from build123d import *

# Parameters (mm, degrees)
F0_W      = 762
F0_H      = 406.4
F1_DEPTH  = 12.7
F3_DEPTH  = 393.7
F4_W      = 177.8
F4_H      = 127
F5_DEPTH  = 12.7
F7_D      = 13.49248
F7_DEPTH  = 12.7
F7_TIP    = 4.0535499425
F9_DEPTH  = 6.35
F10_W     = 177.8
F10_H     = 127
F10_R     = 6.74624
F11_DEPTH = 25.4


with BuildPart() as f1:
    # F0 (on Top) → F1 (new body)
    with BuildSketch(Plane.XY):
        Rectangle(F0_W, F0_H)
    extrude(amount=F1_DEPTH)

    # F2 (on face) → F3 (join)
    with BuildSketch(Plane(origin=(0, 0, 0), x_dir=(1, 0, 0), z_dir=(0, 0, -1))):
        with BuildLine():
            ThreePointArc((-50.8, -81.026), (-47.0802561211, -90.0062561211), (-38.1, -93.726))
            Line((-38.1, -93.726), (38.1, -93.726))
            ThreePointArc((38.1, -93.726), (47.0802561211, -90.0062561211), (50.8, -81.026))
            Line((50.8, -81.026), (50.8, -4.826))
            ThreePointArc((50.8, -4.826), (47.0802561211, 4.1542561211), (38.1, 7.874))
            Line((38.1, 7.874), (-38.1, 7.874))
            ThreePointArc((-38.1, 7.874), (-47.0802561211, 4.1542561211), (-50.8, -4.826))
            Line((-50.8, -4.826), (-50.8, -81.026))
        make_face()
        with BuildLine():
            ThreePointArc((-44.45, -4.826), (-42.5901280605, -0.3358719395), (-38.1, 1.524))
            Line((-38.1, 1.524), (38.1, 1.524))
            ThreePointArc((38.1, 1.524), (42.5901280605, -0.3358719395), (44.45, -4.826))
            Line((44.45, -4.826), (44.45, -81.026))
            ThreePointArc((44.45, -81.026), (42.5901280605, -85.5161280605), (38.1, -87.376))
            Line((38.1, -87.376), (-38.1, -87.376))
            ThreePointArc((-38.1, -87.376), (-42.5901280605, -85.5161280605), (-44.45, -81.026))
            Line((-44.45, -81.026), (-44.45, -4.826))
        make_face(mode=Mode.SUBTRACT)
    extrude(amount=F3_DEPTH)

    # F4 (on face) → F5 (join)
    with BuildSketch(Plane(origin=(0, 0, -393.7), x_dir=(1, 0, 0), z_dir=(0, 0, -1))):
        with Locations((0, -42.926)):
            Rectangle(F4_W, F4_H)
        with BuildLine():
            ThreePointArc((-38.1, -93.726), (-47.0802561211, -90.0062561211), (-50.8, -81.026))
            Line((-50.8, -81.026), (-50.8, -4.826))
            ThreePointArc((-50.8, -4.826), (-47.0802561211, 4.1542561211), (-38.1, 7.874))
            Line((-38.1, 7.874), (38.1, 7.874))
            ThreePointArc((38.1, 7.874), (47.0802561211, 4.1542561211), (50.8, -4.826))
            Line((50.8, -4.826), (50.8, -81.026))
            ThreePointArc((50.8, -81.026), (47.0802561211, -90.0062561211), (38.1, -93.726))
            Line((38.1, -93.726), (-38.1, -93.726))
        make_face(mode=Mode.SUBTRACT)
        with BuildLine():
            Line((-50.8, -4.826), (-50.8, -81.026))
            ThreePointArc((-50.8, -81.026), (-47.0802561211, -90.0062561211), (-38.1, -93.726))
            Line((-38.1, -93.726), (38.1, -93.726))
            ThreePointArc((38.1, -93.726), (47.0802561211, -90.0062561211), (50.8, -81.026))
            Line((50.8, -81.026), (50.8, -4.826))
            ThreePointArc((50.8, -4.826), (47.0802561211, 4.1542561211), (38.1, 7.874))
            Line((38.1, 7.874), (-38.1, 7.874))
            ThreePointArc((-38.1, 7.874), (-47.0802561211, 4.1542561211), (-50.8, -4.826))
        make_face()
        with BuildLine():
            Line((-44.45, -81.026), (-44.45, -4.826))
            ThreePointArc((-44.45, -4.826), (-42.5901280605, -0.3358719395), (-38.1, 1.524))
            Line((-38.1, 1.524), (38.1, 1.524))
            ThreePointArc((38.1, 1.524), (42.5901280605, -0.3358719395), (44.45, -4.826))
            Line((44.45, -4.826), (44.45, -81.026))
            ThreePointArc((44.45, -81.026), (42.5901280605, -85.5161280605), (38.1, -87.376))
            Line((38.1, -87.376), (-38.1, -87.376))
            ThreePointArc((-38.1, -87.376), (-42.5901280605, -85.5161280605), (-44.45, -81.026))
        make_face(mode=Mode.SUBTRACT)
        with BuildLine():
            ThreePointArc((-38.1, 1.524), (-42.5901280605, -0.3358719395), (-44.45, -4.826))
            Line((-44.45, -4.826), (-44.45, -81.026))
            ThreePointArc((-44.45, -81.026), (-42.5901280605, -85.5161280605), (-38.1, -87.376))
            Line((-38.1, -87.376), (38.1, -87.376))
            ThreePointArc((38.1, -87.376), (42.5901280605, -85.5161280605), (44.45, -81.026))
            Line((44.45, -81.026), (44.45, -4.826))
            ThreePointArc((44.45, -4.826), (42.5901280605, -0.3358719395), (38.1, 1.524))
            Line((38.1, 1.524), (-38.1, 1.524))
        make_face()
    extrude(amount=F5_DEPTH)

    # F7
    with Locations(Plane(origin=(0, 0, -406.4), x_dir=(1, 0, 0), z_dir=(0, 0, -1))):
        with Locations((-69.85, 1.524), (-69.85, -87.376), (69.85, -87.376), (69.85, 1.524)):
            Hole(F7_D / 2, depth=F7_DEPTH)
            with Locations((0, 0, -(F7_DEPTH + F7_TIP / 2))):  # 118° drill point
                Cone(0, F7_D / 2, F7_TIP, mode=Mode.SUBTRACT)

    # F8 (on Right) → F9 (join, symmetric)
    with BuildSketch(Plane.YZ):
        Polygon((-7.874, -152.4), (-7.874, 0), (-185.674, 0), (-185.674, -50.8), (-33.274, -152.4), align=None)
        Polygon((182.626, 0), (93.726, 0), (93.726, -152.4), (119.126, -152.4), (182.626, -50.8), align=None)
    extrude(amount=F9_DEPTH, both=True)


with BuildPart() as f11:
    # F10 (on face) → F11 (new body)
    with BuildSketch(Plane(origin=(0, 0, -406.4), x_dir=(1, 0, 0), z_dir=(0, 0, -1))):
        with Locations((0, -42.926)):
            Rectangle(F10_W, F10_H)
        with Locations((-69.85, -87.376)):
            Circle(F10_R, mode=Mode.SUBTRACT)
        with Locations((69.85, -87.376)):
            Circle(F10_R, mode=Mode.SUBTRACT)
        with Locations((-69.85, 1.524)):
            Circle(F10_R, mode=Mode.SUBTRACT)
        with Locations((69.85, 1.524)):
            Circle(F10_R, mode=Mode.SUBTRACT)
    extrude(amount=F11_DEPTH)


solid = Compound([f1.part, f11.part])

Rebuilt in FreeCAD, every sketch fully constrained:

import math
import FreeCAD as App
import Part
import Sketcher

V = App.Vector
Q = App.Units.Quantity

doc = App.newDocument("Part")
body = doc.addObject("PartDesign::Body", "Body")

# Sketch on XY plane
sketch1 = body.newObject("Sketcher::SketchObject", "Sketch")
sketch1.AttachmentSupport = (doc.getObject("XY_Plane"), [""])
sketch1.MapMode = "FlatFace"
sketch1.addGeometry(Part.LineSegment(V(-381, 203, 0), V(-381, -203, 0)), False)
sketch1.addGeometry(Part.LineSegment(V(-381, -203, 0), V(381, -203, 0)), False)
sketch1.addGeometry(Part.LineSegment(V(381, -203, 0), V(381, 203, 0)), False)
sketch1.addGeometry(Part.LineSegment(V(381, 203, 0), V(-381, 203, 0)), False)
sketch1.addConstraint(Sketcher.Constraint("Coincident", 0, 2, 1, 1))
sketch1.addConstraint(Sketcher.Constraint("Coincident", 1, 2, 2, 1))
sketch1.addConstraint(Sketcher.Constraint("Coincident", 2, 2, 3, 1))
sketch1.addConstraint(Sketcher.Constraint("Coincident", 3, 2, 0, 1))
sketch1.addConstraint(Sketcher.Constraint("Vertical", 0))
sketch1.addConstraint(Sketcher.Constraint("Horizontal", 1))
sketch1.addConstraint(Sketcher.Constraint("Vertical", 2))
sketch1.addConstraint(Sketcher.Constraint("Horizontal", 3))
sketch1.addConstraint(Sketcher.Constraint("Symmetric", 0, 2, 2, 2, -1, 1))
sketch1.addConstraint(Sketcher.Constraint("DistanceX", 1, 1, 1, 2, Q("30 in")))
sketch1.addConstraint(Sketcher.Constraint("DistanceY", 0, 2, 0, 1, Q("16 in")))
pad1 = body.newObject("PartDesign::Pad", "Pad")
pad1.Profile = sketch1
pad1.Length = Q("0.5 in")

# Sketch on XY plane
sketch2 = body.newObject("Sketcher::SketchObject", "Sketch001")
sketch2.AttachmentSupport = (doc.getObject("XY_Plane"), [""])
sketch2.MapMode = "FlatFace"
sketch2.addGeometry(Part.ArcOfCircle(Part.Circle(V(-38, 81, 0), V(0, 0, 1), 13), math.radians(90), math.radians(180)), False)
sketch2.addGeometry(Part.LineSegment(V(-38, 94, 0), V(38, 94, 0)), False)
sketch2.addGeometry(Part.ArcOfCircle(Part.Circle(V(38, 81, 0), V(0, 0, 1), 13), math.radians(0), math.radians(90)), False)
sketch2.addGeometry(Part.LineSegment(V(51, 81, 0), V(51, 5, 0)), False)
sketch2.addGeometry(Part.ArcOfCircle(Part.Circle(V(38, 5, 0), V(0, 0, 1), 13), math.radians(-90), math.radians(0)), False)
sketch2.addGeometry(Part.LineSegment(V(38, -8, 0), V(-38, -8, 0)), False)
sketch2.addGeometry(Part.ArcOfCircle(Part.Circle(V(-38, 5, 0), V(0, 0, 1), 13), math.radians(180), math.radians(270)), False)
sketch2.addGeometry(Part.LineSegment(V(-51, 5, 0), V(-51, 81, 0)), False)
sketch2.addGeometry(Part.LineSegment(V(-44, 81, 0), V(-44, 5, 0)), False)
sketch2.addGeometry(Part.ArcOfCircle(Part.Circle(V(-38, 5, 0), V(0, 0, 1), 6), math.radians(180), math.radians(270)), False)
sketch2.addGeometry(Part.LineSegment(V(-38, -2, 0), V(38, -2, 0)), False)
sketch2.addGeometry(Part.ArcOfCircle(Part.Circle(V(38, 5, 0), V(0, 0, 1), 6), math.radians(-90), math.radians(0)), False)
sketch2.addGeometry(Part.LineSegment(V(44, 5, 0), V(44, 81, 0)), False)
sketch2.addGeometry(Part.ArcOfCircle(Part.Circle(V(38, 81, 0), V(0, 0, 1), 6), math.radians(0), math.radians(90)), False)
sketch2.addGeometry(Part.LineSegment(V(38, 87, 0), V(-38, 87, 0)), False)
sketch2.addGeometry(Part.ArcOfCircle(Part.Circle(V(-38, 81, 0), V(0, 0, 1), 6), math.radians(90), math.radians(180)), False)
sketch2.addConstraint(Sketcher.Constraint("Tangent", 0, 1, 1, 1))
sketch2.addConstraint(Sketcher.Constraint("Tangent", 1, 2, 2, 2))
sketch2.addConstraint(Sketcher.Constraint("Tangent", 2, 1, 3, 1))
sketch2.addConstraint(Sketcher.Constraint("Tangent", 3, 2, 4, 2))
sketch2.addConstraint(Sketcher.Constraint("Tangent", 4, 1, 5, 1))
sketch2.addConstraint(Sketcher.Constraint("Tangent", 5, 2, 6, 2))
sketch2.addConstraint(Sketcher.Constraint("Tangent", 6, 1, 7, 1))
sketch2.addConstraint(Sketcher.Constraint("Tangent", 7, 2, 0, 2))
sketch2.addConstraint(Sketcher.Constraint("Tangent", 8, 2, 9, 1))
sketch2.addConstraint(Sketcher.Constraint("Tangent", 9, 2, 10, 1))
sketch2.addConstraint(Sketcher.Constraint("Tangent", 10, 2, 11, 1))
sketch2.addConstraint(Sketcher.Constraint("Tangent", 11, 2, 12, 1))
sketch2.addConstraint(Sketcher.Constraint("Tangent", 12, 2, 13, 1))
sketch2.addConstraint(Sketcher.Constraint("Tangent", 13, 2, 14, 1))
sketch2.addConstraint(Sketcher.Constraint("Tangent", 14, 2, 15, 1))
sketch2.addConstraint(Sketcher.Constraint("Tangent", 15, 2, 8, 1))
sketch2.addConstraint(Sketcher.Constraint("Horizontal", 1))
sketch2.addConstraint(Sketcher.Constraint("Vertical", 3))
sketch2.addConstraint(Sketcher.Constraint("Horizontal", 5))
sketch2.addConstraint(Sketcher.Constraint("Vertical", 7))
sketch2.addConstraint(Sketcher.Constraint("Vertical", 8))
sketch2.addConstraint(Sketcher.Constraint("Horizontal", 10))
sketch2.addConstraint(Sketcher.Constraint("Vertical", 12))
sketch2.addConstraint(Sketcher.Constraint("Horizontal", 14))
sketch2.addConstraint(Sketcher.Constraint("Coincident", 9, 3, 6, 3))
sketch2.addConstraint(Sketcher.Constraint("Coincident", 11, 3, 4, 3))
sketch2.addConstraint(Sketcher.Constraint("Coincident", 13, 3, 2, 3))
sketch2.addConstraint(Sketcher.Constraint("Equal", 0, 2))
sketch2.addConstraint(Sketcher.Constraint("Equal", 2, 4))
sketch2.addConstraint(Sketcher.Constraint("Equal", 4, 6))
sketch2.addConstraint(Sketcher.Constraint("Equal", 13, 15))
sketch2.addConstraint(Sketcher.Constraint("Equal", 14, 3))
sketch2.addConstraint(Sketcher.Constraint("Radius", 0, Q("0.5 in")))
sketch2.addConstraint(Sketcher.Constraint("DistanceX", 1, 1, 1, 2, Q("3 in")))
sketch2.addConstraint(Sketcher.Constraint("Radius", 9, Q("0.25 in")))
sketch2.addConstraint(Sketcher.Constraint("DistanceX", -1, 1, 2, 1, Q("2 in")))
sketch2.addConstraint(Sketcher.Constraint("DistanceY", -1, 1, 0, 3, Q("3.19 in")))
pad2 = body.newObject("PartDesign::Pad", "Pad001")
pad2.Profile = sketch2
pad2.Length = Q("15.5 in")
pad2.Reversed = True

# Sketch on XY plane
sketch3 = body.newObject("Sketcher::SketchObject", "Sketch002")
sketch3.AttachmentSupport = (doc.getObject("XY_Plane"), [""])
sketch3.MapMode = "FlatFace"
sketch3.AttachmentOffset = App.Placement(V(0, 0, -15.5 * 25.4), App.Rotation())
sketch3.addGeometry(Part.LineSegment(V(-89, -21, 0), V(-89, 106, 0)), False)
sketch3.addGeometry(Part.LineSegment(V(-89, 106, 0), V(89, 106, 0)), False)
sketch3.addGeometry(Part.LineSegment(V(89, 106, 0), V(89, -21, 0)), False)
sketch3.addGeometry(Part.LineSegment(V(89, -21, 0), V(-89, -21, 0)), False)
sketch3.addConstraint(Sketcher.Constraint("Coincident", 0, 2, 1, 1))
sketch3.addConstraint(Sketcher.Constraint("Coincident", 1, 2, 2, 1))
sketch3.addConstraint(Sketcher.Constraint("Coincident", 2, 2, 3, 1))
sketch3.addConstraint(Sketcher.Constraint("Coincident", 3, 2, 0, 1))
sketch3.addConstraint(Sketcher.Constraint("Vertical", 0))
sketch3.addConstraint(Sketcher.Constraint("Horizontal", 1))
sketch3.addConstraint(Sketcher.Constraint("Vertical", 2))
sketch3.addConstraint(Sketcher.Constraint("Horizontal", 3))
sketch3.addConstraint(Sketcher.Constraint("DistanceX", 1, 1, 1, 2, Q("7 in")))
sketch3.addConstraint(Sketcher.Constraint("DistanceY", 0, 1, 0, 2, Q("5 in")))
sketch3.addConstraint(Sketcher.Constraint("DistanceX", 0, 2, -1, 1, Q("3.5 in")))
sketch3.addConstraint(Sketcher.Constraint("DistanceY", -1, 1, 0, 2, Q("4.19 in")))
pad3 = body.newObject("PartDesign::Pad", "Pad002")
pad3.Profile = sketch3
pad3.Length = Q("0.5 in")
pad3.Reversed = True

# Sketch on XY plane
sketch4 = body.newObject("Sketcher::SketchObject", "Sketch003")
sketch4.AttachmentSupport = (doc.getObject("XY_Plane"), [""])
sketch4.MapMode = "FlatFace"
sketch4.AttachmentOffset = App.Placement(V(0, 0, -16 * 25.4), App.Rotation())
sketch4.addGeometry(Part.Circle(V(-70, -2, 0), V(0, 0, 1), 7), False)
sketch4.addGeometry(Part.Circle(V(-70, 87, 0), V(0, 0, 1), 7), False)
sketch4.addGeometry(Part.Circle(V(70, 87, 0), V(0, 0, 1), 7), False)
sketch4.addGeometry(Part.Circle(V(70, -2, 0), V(0, 0, 1), 7), False)
sketch4.addConstraint(Sketcher.Constraint("Equal", 0, 1))
sketch4.addConstraint(Sketcher.Constraint("Equal", 1, 2))
sketch4.addConstraint(Sketcher.Constraint("Equal", 2, 3))
sketch4.addConstraint(Sketcher.Constraint("Symmetric", 1, 3, 2, 3, -2))
sketch4.addConstraint(Sketcher.Constraint("Symmetric", 0, 3, 3, 3, -2))
sketch4.addConstraint(Sketcher.Constraint("Vertical", 0, 3, 1, 3))
sketch4.addConstraint(Sketcher.Constraint("Diameter", 0, Q("0.5312 in")))
sketch4.addConstraint(Sketcher.Constraint("DistanceY", 0, 3, 1, 3, Q("3.5 in")))
sketch4.addConstraint(Sketcher.Constraint("DistanceX", 1, 3, 2, 3, Q("5.5 in")))
sketch4.addConstraint(Sketcher.Constraint("DistanceY", 0, 3, -1, 1, Q("0.06 in")))
doc.recompute()
hole = body.newObject("PartDesign::Hole", "Hole")
hole.Profile = sketch4
hole.ThreadType = "None"
hole.Diameter = Q("0.5312 in")
hole.DepthType = "Dimension"
hole.Depth = Q("0.5 in")
hole.DrillPoint = "Angled"
hole.DrillPointAngle = 118
hole.Reversed = True

# Sketch on YZ plane
sketch5 = body.newObject("Sketcher::SketchObject", "Sketch004")
sketch5.AttachmentSupport = (doc.getObject("YZ_Plane"), [""])
sketch5.MapMode = "FlatFace"
sketch5.addGeometry(Part.LineSegment(V(-8, -152, 0), V(-8, 0, 0)), False)
sketch5.addGeometry(Part.LineSegment(V(-8, 0, 0), V(-186, 0, 0)), False)
sketch5.addGeometry(Part.LineSegment(V(-186, 0, 0), V(-186, -51, 0)), False)
sketch5.addGeometry(Part.LineSegment(V(-186, -51, 0), V(-33, -152, 0)), False)
sketch5.addGeometry(Part.LineSegment(V(-33, -152, 0), V(-8, -152, 0)), False)
sketch5.addGeometry(Part.LineSegment(V(183, 0, 0), V(94, 0, 0)), False)
sketch5.addGeometry(Part.LineSegment(V(94, 0, 0), V(94, -152, 0)), False)
sketch5.addGeometry(Part.LineSegment(V(94, -152, 0), V(119, -152, 0)), False)
sketch5.addGeometry(Part.LineSegment(V(119, -152, 0), V(183, -51, 0)), False)
sketch5.addGeometry(Part.LineSegment(V(183, -51, 0), V(183, 0, 0)), False)
sketch5.addConstraint(Sketcher.Constraint("Coincident", 0, 2, 1, 1))
sketch5.addConstraint(Sketcher.Constraint("Coincident", 1, 2, 2, 1))
sketch5.addConstraint(Sketcher.Constraint("Coincident", 2, 2, 3, 1))
sketch5.addConstraint(Sketcher.Constraint("Coincident", 3, 2, 4, 1))
sketch5.addConstraint(Sketcher.Constraint("Coincident", 4, 2, 0, 1))
sketch5.addConstraint(Sketcher.Constraint("Coincident", 5, 2, 6, 1))
sketch5.addConstraint(Sketcher.Constraint("Coincident", 6, 2, 7, 1))
sketch5.addConstraint(Sketcher.Constraint("Coincident", 7, 2, 8, 1))
sketch5.addConstraint(Sketcher.Constraint("Coincident", 8, 2, 9, 1))
sketch5.addConstraint(Sketcher.Constraint("Coincident", 9, 2, 5, 1))
sketch5.addConstraint(Sketcher.Constraint("Vertical", 0))
sketch5.addConstraint(Sketcher.Constraint("Horizontal", 1))
sketch5.addConstraint(Sketcher.Constraint("Vertical", 2))
sketch5.addConstraint(Sketcher.Constraint("Horizontal", 4))
sketch5.addConstraint(Sketcher.Constraint("Horizontal", 5))
sketch5.addConstraint(Sketcher.Constraint("Vertical", 6))
sketch5.addConstraint(Sketcher.Constraint("Horizontal", 7))
sketch5.addConstraint(Sketcher.Constraint("Vertical", 9))
sketch5.addConstraint(Sketcher.Constraint("PointOnObject", 0, 2, -1))
sketch5.addConstraint(Sketcher.Constraint("PointOnObject", 5, 2, -1))
sketch5.addConstraint(Sketcher.Constraint("Horizontal", 4, 2, 6, 2))
sketch5.addConstraint(Sketcher.Constraint("Horizontal", 2, 2, 8, 2))
sketch5.addConstraint(Sketcher.Constraint("Equal", 4, 7))
sketch5.addConstraint(Sketcher.Constraint("DistanceX", 1, 2, 1, 1, Q("7 in")))
sketch5.addConstraint(Sketcher.Constraint("DistanceX", 4, 1, 4, 2, Q("1 in")))
sketch5.addConstraint(Sketcher.Constraint("DistanceY", 0, 1, 0, 2, Q("6 in")))
sketch5.addConstraint(Sketcher.Constraint("DistanceY", 2, 2, 2, 1, Q("2 in")))
sketch5.addConstraint(Sketcher.Constraint("DistanceX", 5, 2, 5, 1, Q("3.5 in")))
sketch5.addConstraint(Sketcher.Constraint("DistanceX", 0, 2, 5, 2, Q("4 in")))
sketch5.addConstraint(Sketcher.Constraint("DistanceX", 0, 2, -1, 1, Q("0.31 in")))
pad4 = body.newObject("PartDesign::Pad", "Pad003")
pad4.Profile = sketch5
pad4.Length = Q("0.5 in")
pad4.Midplane = True
body2 = doc.addObject("PartDesign::Body", "Body001")

# Sketch on XY plane
sketch6 = body2.newObject("Sketcher::SketchObject", "Sketch005")
sketch6.AttachmentSupport = (doc.getObject("XY_Plane001"), [""])
sketch6.MapMode = "FlatFace"
sketch6.AttachmentOffset = App.Placement(V(0, 0, -16 * 25.4), App.Rotation())
sketch6.addGeometry(Part.LineSegment(V(-89, -21, 0), V(-89, 106, 0)), False)
sketch6.addGeometry(Part.LineSegment(V(-89, 106, 0), V(89, 106, 0)), False)
sketch6.addGeometry(Part.LineSegment(V(89, 106, 0), V(89, -21, 0)), False)
sketch6.addGeometry(Part.LineSegment(V(89, -21, 0), V(-89, -21, 0)), False)
sketch6.addGeometry(Part.Circle(V(-70, 87, 0), V(0, 0, 1), 7), False)
sketch6.addGeometry(Part.Circle(V(70, 87, 0), V(0, 0, 1), 7), False)
sketch6.addGeometry(Part.Circle(V(-70, -2, 0), V(0, 0, 1), 7), False)
sketch6.addGeometry(Part.Circle(V(70, -2, 0), V(0, 0, 1), 7), False)
sketch6.addConstraint(Sketcher.Constraint("Coincident", 0, 2, 1, 1))
sketch6.addConstraint(Sketcher.Constraint("Coincident", 1, 2, 2, 1))
sketch6.addConstraint(Sketcher.Constraint("Coincident", 2, 2, 3, 1))
sketch6.addConstraint(Sketcher.Constraint("Coincident", 3, 2, 0, 1))
sketch6.addConstraint(Sketcher.Constraint("Vertical", 0))
sketch6.addConstraint(Sketcher.Constraint("Horizontal", 1))
sketch6.addConstraint(Sketcher.Constraint("Vertical", 2))
sketch6.addConstraint(Sketcher.Constraint("Horizontal", 3))
sketch6.addConstraint(Sketcher.Constraint("Equal", 4, 5))
sketch6.addConstraint(Sketcher.Constraint("Equal", 5, 6))
sketch6.addConstraint(Sketcher.Constraint("Equal", 6, 7))
sketch6.addConstraint(Sketcher.Constraint("Symmetric", 4, 3, 5, 3, -2))
sketch6.addConstraint(Sketcher.Constraint("Symmetric", 6, 3, 7, 3, -2))
sketch6.addConstraint(Sketcher.Constraint("Vertical", 4, 3, 6, 3))
sketch6.addConstraint(Sketcher.Constraint("DistanceX", 1, 1, 1, 2, Q("7 in")))
sketch6.addConstraint(Sketcher.Constraint("DistanceY", 0, 1, 0, 2, Q("5 in")))
sketch6.addConstraint(Sketcher.Constraint("Diameter", 4, Q("0.5312 in")))
sketch6.addConstraint(Sketcher.Constraint("DistanceX", 0, 2, -1, 1, Q("3.5 in")))
sketch6.addConstraint(Sketcher.Constraint("DistanceX", 4, 3, 5, 3, Q("5.5 in")))
sketch6.addConstraint(Sketcher.Constraint("DistanceY", 6, 3, 4, 3, Q("3.5 in")))
sketch6.addConstraint(Sketcher.Constraint("DistanceY", -1, 1, 4, 3, Q("3.44 in")))
sketch6.addConstraint(Sketcher.Constraint("DistanceY", -1, 1, 0, 2, Q("4.19 in")))
pad5 = body2.newObject("PartDesign::Pad", "Pad004")
pad5.Profile = sketch6
pad5.Length = Q("1 in")
pad5.Reversed = True

doc.recompute()
